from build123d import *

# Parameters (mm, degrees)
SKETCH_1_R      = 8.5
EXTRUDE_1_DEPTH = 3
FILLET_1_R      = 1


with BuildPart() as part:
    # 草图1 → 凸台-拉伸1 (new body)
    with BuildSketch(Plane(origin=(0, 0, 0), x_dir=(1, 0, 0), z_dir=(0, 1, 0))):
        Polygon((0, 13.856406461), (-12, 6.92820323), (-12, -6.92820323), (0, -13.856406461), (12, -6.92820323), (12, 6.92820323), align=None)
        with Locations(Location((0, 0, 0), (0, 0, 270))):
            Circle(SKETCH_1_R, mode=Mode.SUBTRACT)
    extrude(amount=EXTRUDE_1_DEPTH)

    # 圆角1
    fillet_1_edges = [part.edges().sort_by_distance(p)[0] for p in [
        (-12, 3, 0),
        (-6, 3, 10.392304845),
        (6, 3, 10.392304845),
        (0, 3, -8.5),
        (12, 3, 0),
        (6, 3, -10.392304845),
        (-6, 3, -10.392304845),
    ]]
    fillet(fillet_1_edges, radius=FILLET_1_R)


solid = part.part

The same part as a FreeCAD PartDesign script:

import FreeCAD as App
import Part
import Sketcher

V = App.Vector
Q = App.Units.Quantity


def edges_at(feature, points):
    """Names of the edges that pass closest to the given points."""
    edges = feature.Shape.Edges
    near = lambda p: min(range(len(edges)), key=lambda i: edges[i].distToShape(Part.Vertex(*p))[0])
    return sorted({f"Edge{near(p) + 1}" for p in points})


def add_polygon(sketch, points):
    """Adds a closed chain of lines whose ends are joined by coincident constraints."""
    first, n = sketch.GeometryCount, len(points)
    for a, b in zip(points, points[1:] + points[:1]):
        sketch.addGeometry(Part.LineSegment(App.Vector(*a, 0), App.Vector(*b, 0)), False)
    for i in range(n):
        sketch.addConstraint(Sketcher.Constraint("Coincident", first + i, 2, first + (i + 1) % n, 1))

doc = App.newDocument("Part")
body = doc.addObject("PartDesign::Body", "Body")

# Sketch on XZ plane
sketch1 = doc.addObject("Sketcher::SketchObject", "Sketch")
body.addObject(sketch1)
sketch1.AttachmentSupport = (doc.XZ_Plane, [""])
sketch1.MapMode = "FlatFace"
add_polygon(sketch1, [(0, -14), (-12, -7), (-12, 7), (0, 14), (12, 7), (12, -7)])  # lines 0-5
sketch1.addGeometry(Part.Circle(V(0, 0, 0), V(0, 0, 1), 8), False)  # 6
sketch1.addConstraint([
    Sketcher.Constraint("Vertical", 1),
    Sketcher.Constraint("Vertical", 4),
    Sketcher.Constraint("Coincident", 6, 3, -1, 1),
    Sketcher.Constraint("Symmetric", 0, 2, 3, 2, -1, 1),
    Sketcher.Constraint("Symmetric", 2, 2, 5, 2, -1, 1),
    Sketcher.Constraint("PointOnObject", 2, 2, -2),
    Sketcher.Constraint("Parallel", 2, 5),
    Sketcher.Constraint("Horizontal", 1, 2, 3, 2),
    Sketcher.Constraint("Diameter", 6, Q("17 mm")),
    Sketcher.Constraint("Angle", 0, Q("150 deg")),
    Sketcher.Constraint("DistanceX", 0, 2, -1, 1, Q("12 mm")),
    Sketcher.Constraint("DistanceY", 1, 1, 1, 2, Q("13.856406 mm")),
])
pad1 = doc.addObject("PartDesign::Pad", "Pad")
body.addObject(pad1)
pad1.Profile = sketch1
pad1.Length = 3
pad1.Reversed = True
doc.recompute()

fillet = doc.addObject("PartDesign::Fillet", "Fillet")
body.addObject(fillet)
fillet.Base = (pad1, edges_at(pad1, [
    (-12, 3, 0),
    (-6, 3, 10.392),
    (6, 3, 10.392),
    (0, 3, -8.5),
    (12, 3, 0),
    (6, 3, -10.392),
    (-6, 3, -10.392),
]))
fillet.Radius = 1

doc.recompute()
